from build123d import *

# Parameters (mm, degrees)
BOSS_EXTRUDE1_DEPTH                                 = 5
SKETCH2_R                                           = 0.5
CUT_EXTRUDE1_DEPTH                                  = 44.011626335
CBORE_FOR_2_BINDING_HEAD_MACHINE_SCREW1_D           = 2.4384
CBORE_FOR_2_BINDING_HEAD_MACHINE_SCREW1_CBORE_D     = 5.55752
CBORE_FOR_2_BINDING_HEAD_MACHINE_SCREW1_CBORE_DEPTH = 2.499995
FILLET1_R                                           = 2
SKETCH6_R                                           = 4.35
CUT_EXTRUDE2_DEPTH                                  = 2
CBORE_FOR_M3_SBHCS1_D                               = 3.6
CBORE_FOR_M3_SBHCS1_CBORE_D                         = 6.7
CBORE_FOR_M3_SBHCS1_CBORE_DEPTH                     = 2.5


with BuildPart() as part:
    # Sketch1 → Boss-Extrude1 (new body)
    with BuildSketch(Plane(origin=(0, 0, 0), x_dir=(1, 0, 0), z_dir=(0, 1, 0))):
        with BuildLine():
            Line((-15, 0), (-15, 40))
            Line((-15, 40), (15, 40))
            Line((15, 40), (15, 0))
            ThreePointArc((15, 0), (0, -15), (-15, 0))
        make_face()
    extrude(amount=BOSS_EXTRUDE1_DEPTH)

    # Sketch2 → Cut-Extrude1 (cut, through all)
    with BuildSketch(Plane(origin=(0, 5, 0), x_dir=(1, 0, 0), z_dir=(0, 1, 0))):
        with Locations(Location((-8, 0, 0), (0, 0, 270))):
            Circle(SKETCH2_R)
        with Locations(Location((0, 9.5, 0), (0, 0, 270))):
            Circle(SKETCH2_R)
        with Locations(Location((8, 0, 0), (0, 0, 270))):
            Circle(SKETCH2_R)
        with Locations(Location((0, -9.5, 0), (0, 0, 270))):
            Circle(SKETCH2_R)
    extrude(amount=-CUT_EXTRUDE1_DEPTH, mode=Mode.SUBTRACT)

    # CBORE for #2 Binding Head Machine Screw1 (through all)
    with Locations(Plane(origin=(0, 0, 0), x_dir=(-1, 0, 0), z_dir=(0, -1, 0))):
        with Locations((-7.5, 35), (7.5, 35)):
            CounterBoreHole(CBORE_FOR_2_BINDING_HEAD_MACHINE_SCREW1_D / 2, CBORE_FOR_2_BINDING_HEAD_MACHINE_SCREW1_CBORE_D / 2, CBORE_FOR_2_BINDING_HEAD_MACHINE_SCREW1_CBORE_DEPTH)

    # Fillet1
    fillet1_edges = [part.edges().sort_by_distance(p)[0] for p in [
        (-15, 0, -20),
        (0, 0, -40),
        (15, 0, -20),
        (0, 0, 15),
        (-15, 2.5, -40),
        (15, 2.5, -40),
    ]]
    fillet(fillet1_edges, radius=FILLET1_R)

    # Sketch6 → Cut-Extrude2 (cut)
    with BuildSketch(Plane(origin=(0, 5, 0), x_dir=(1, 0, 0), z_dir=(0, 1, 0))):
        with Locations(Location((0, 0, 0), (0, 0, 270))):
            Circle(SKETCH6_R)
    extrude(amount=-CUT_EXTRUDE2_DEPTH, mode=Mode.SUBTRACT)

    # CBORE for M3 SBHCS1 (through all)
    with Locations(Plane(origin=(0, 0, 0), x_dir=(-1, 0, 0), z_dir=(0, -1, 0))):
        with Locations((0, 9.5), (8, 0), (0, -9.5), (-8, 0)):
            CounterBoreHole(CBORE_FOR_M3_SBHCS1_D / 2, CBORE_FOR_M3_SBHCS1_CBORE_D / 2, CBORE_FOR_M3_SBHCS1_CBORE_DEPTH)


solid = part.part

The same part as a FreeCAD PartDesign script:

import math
import FreeCAD as App
import Part
import Sketcher

V = App.Vector


def edges_at(feature, points):
    """Names of the edges that pass closest to the given points."""
    edges = feature.Shape.Edges
    near = lambda p: min(range(len(edges)), key=lambda i: edges[i].distToShape(Part.Vertex(*p))[0])
    return sorted({f"Edge{near(p) + 1}" for p in points})

doc = App.newDocument("Part")
body = doc.addObject("PartDesign::Body", "Body")

sketch1 = body.newObject("Sketcher::SketchObject", "Sketch")
sketch1.AttachmentSupport = (doc.getObject("XZ_Plane"), [""])
sketch1.MapMode = "FlatFace"
sketch1.addGeometry([
    Part.LineSegment(V(-15, -40, 0), V(-15, 0, 0)),
    Part.ArcOfCircle(Part.Circle(V(0, 0, 0), V(0, 0, 1), 15), math.radians(0), math.radians(180)),
    Part.LineSegment(V(15, 0, 0), V(15, -40, 0)),
    Part.LineSegment(V(15, -40, 0), V(-15, -40, 0)),
], False)
sketch1.addConstraint([
    Sketcher.Constraint("Tangent", 0, 2, 1, 2),
    Sketcher.Constraint("Tangent", 1, 1, 2, 1),
    Sketcher.Constraint("Coincident", 2, 2, 3, 1),
    Sketcher.Constraint("Coincident", 3, 2, 0, 1),
    Sketcher.Constraint("Vertical", 0),
    Sketcher.Constraint("Vertical", 2),
    Sketcher.Constraint("Horizontal", 3),
    Sketcher.Constraint("Coincident", 1, 3, -1, 1),
    Sketcher.Constraint("Radius", 1, 15.0),
    Sketcher.Constraint("DistanceY", 0, 1, 0, 2, 40.0),
])
pad1 = body.newObject("PartDesign::Pad", "Pad")
pad1.Profile = sketch1
pad1.Length = 5
pad1.Reversed = True

sketch2 = body.newObject("Sketcher::SketchObject", "Sketch001")
sketch2.AttachmentSupport = (doc.getObject("XZ_Plane"), [""])
sketch2.MapMode = "FlatFace"
sketch2.AttachmentOffset = App.Placement(V(0, 0, -5), App.Rotation())
sketch2.addGeometry([
    Part.Circle(V(-8, 0, 0), V(0, 0, 1), 0.5),
    Part.Circle(V(0, -9.5, 0), V(0, 0, 1), 0.5),
    Part.Circle(V(8, 0, 0), V(0, 0, 1), 0.5),
    Part.Circle(V(0, 9.5, 0), V(0, 0, 1), 0.5),
], False)
sketch2.addConstraint([
    Sketcher.Constraint("Equal", 0, 1),
    Sketcher.Constraint("Equal", 1, 2),
    Sketcher.Constraint("Equal", 2, 3),
    Sketcher.Constraint("Symmetric", 0, 3, 2, 3, -1, 1),
    Sketcher.Constraint("Symmetric", 1, 3, 3, 3, -1, 1),
    Sketcher.Constraint("PointOnObject", 0, 3, -1),
    Sketcher.Constraint("PointOnObject", 1, 3, -2),
    Sketcher.Constraint("Diameter", 0, 1.0),
    Sketcher.Constraint("DistanceX", 0, 3, -1, 1, 8.0),
    Sketcher.Constraint("DistanceY", 1, 3, 3, 3, 19.0),
])
pocket1 = body.newObject("PartDesign::Pocket", "Pocket")
pocket1.Profile = sketch2
pocket1.Type = "ThroughAll"
pocket1.Reversed = True

sketch3 = body.newObject("Sketcher::SketchObject", "Sketch002")
sketch3.AttachmentSupport = (doc.getObject("XZ_Plane"), [""])
sketch3.MapMode = "FlatFace"
sketch3.addGeometry([
    Part.Circle(V(7.5, -35, 0), V(0, 0, 1), 1.2),
    Part.Circle(V(-7.5, -35, 0), V(0, 0, 1), 1.2),
], False)
sketch3.addConstraint([
    Sketcher.Constraint("Equal", 0, 1),
    Sketcher.Constraint("Symmetric", 0, 3, 1, 3, -2),
    Sketcher.Constraint("DistanceY", 0, 3, -1, 1, 35.0),
    Sketcher.Constraint("DistanceX", 1, 3, 0, 3, 15.0),
    Sketcher.Constraint("Diameter", 0, 2.4384),
])
doc.recompute()
hole = body.newObject("PartDesign::Hole", "Hole")
hole.Profile = sketch3
hole.ThreadType = "None"
hole.Diameter = 2.4384
hole.DepthType = "ThroughAll"
hole.HoleCutType = "Counterbore"
hole.HoleCutDiameter = 5.55752
hole.HoleCutDepth = 2.499995
doc.recompute()

fillet = body.newObject("PartDesign::Fillet", "Fillet")
fillet.Base = (hole, edges_at(hole, [
    (-15, 0, -20),
    (0, 0, -40),
    (15, 0, -20),
    (0, 0, 15),
    (-15, 2.5, -40),
    (15, 2.5, -40),
]))
fillet.Radius = 2

sketch4 = body.newObject("Sketcher::SketchObject", "Sketch003")
sketch4.AttachmentSupport = (doc.getObject("XZ_Plane"), [""])
sketch4.MapMode = "FlatFace"
sketch4.AttachmentOffset = App.Placement(V(0, 0, -5), App.Rotation())
sketch4.addGeometry(Part.Circle(V(0, 0, 0), V(0, 0, 1), 4.3), False)
sketch4.addConstraint([
    Sketcher.Constraint("Coincident", 0, 3, -1, 1),
    Sketcher.Constraint("Diameter", 0, 8.7),
])
pocket2 = body.newObject("PartDesign::Pocket", "Pocket001")
pocket2.Profile = sketch4
pocket2.Length = 2
pocket2.Reversed = True

sketch5 = body.newObject("Sketcher::SketchObject", "Sketch004")
sketch5.AttachmentSupport = (doc.getObject("XZ_Plane"), [""])
sketch5.MapMode = "FlatFace"
sketch5.addGeometry([
    Part.Circle(V(0, -9.5, 0), V(0, 0, 1), 1.8),
    Part.Circle(V(-8, 0, 0), V(0, 0, 1), 1.8),
    Part.Circle(V(0, 9.5, 0), V(0, 0, 1), 1.8),
    Part.Circle(V(8, 0, 0), V(0, 0, 1), 1.8),
], False)
sketch5.addConstraint([
    Sketcher.Constraint("Equal", 0, 1),
    Sketcher.Constraint("Equal", 1, 2),
    Sketcher.Constraint("Equal", 2, 3),
    Sketcher.Constraint("Symmetric", 0, 3, 2, 3, -1, 1),
    Sketcher.Constraint("Symmetric", 1, 3, 3, 3, -1, 1),
    Sketcher.Constraint("PointOnObject", 0, 3, -2),
    Sketcher.Constraint("PointOnObject", 1, 3, -1),
    Sketcher.Constraint("Diameter", 0, 3.6),
    Sketcher.Constraint("DistanceX", 1, 3, -1, 1, 8.0),
    Sketcher.Constraint("DistanceY", 0, 3, 2, 3, 19.0),
])
doc.recompute()
hole2 = body.newObject("PartDesign::Hole", "Hole001")
hole2.Profile = sketch5
hole2.ThreadType = "None"
hole2.Diameter = 3.6
hole2.DepthType = "ThroughAll"
hole2.HoleCutType = "Counterbore"
hole2.HoleCutDiameter = 6.7
hole2.HoleCutDepth = 2.5

doc.recompute()
